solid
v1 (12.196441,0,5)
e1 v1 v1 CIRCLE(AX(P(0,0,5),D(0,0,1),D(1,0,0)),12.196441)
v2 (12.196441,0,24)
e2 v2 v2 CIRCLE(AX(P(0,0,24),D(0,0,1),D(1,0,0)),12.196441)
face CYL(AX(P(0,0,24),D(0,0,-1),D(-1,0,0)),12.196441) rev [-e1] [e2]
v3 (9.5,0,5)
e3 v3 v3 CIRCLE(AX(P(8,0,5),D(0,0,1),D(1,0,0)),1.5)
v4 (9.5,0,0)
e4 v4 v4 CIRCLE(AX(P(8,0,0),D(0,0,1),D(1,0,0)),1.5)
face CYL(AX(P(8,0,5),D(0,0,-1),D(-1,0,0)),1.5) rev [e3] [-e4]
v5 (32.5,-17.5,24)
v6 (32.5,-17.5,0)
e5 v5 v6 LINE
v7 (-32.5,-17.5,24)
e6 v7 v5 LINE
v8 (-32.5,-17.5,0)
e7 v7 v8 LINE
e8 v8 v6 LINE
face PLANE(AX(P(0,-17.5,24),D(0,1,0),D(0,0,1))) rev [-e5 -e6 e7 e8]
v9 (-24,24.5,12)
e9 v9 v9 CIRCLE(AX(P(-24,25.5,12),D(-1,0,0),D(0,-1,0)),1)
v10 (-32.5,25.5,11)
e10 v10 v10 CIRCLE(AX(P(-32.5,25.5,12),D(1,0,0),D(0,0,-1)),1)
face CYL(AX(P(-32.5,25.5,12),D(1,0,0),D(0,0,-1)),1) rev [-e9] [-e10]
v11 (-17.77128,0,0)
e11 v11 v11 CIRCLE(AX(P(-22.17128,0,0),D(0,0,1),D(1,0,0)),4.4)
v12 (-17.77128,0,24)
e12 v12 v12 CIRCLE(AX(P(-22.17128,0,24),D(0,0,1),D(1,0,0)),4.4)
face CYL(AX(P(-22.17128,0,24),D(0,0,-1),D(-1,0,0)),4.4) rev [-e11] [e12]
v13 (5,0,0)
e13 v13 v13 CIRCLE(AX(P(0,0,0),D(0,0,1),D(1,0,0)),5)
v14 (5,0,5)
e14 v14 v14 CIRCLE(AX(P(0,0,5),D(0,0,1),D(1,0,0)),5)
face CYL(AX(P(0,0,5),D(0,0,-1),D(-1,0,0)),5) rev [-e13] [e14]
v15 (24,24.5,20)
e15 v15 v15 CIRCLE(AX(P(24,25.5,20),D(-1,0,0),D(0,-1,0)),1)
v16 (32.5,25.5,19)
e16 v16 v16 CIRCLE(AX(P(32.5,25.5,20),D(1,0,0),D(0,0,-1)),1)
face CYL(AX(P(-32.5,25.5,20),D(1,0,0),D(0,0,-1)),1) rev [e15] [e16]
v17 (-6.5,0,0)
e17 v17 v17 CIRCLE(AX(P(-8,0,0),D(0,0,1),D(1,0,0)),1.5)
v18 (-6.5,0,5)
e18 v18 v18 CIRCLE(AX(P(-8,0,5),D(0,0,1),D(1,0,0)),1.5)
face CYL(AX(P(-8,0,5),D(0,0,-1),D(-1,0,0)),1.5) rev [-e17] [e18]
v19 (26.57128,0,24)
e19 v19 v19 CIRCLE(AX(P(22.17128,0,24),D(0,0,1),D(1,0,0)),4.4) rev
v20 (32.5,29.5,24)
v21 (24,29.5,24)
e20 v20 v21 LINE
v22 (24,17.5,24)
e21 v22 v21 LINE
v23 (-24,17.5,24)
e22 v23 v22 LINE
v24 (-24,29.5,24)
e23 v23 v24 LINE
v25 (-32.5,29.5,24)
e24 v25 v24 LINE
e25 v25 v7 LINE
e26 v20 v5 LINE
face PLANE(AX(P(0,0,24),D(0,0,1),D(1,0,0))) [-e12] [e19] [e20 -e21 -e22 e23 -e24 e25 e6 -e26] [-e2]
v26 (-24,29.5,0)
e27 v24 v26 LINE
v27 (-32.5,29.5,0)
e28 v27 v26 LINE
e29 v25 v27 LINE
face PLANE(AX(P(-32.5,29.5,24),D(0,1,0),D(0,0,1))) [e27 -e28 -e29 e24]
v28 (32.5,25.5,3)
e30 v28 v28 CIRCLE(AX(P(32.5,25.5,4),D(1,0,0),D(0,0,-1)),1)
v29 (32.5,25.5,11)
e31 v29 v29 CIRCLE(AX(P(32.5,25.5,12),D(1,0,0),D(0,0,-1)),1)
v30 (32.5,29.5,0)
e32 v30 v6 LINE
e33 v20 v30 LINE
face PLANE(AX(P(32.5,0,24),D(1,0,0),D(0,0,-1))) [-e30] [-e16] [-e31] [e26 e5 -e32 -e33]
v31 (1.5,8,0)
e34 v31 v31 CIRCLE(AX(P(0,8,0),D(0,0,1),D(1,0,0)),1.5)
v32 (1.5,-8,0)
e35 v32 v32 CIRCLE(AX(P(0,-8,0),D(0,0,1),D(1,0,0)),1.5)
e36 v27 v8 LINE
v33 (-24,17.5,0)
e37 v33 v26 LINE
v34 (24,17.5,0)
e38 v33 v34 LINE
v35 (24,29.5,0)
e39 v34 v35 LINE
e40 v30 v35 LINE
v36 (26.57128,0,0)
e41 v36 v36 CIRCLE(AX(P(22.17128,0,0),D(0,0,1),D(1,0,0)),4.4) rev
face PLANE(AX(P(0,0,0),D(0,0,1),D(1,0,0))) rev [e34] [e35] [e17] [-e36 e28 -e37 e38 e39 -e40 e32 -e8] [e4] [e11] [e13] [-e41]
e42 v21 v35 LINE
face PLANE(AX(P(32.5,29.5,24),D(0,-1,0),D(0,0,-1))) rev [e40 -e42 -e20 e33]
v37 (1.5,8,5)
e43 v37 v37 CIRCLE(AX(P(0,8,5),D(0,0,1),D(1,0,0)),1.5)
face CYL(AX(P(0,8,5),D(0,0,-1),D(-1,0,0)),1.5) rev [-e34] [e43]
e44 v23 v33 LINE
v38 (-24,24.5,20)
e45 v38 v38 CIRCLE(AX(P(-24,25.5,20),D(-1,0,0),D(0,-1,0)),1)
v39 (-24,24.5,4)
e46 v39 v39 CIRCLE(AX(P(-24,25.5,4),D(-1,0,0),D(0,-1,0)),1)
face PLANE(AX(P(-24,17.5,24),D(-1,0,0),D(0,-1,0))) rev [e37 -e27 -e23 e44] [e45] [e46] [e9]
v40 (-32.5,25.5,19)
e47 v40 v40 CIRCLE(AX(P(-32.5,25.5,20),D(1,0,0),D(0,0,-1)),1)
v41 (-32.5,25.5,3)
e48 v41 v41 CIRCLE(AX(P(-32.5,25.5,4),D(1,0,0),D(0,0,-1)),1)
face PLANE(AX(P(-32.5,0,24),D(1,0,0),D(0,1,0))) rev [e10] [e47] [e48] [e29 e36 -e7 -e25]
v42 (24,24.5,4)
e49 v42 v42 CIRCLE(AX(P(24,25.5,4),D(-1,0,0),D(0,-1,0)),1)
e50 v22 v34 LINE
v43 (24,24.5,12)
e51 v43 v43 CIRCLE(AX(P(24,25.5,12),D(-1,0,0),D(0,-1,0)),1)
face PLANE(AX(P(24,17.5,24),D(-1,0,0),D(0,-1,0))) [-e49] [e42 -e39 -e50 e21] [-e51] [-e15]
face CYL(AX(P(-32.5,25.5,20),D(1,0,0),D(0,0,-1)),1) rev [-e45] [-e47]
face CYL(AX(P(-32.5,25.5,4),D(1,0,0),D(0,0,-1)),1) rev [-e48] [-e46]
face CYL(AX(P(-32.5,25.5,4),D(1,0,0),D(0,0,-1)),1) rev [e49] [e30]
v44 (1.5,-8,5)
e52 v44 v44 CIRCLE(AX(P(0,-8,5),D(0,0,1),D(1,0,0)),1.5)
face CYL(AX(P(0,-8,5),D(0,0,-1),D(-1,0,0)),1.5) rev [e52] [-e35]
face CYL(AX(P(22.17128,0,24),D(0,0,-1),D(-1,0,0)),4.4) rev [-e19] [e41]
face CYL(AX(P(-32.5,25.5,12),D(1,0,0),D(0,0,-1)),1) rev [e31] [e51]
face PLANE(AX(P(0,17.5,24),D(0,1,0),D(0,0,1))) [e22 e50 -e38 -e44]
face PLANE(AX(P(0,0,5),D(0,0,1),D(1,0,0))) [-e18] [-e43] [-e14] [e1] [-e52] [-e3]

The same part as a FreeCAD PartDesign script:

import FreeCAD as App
import Part
import Sketcher
from FreeCAD import Vector
Q = App.Units.Quantity

doc = App.newDocument("Part")
body = doc.addObject("PartDesign::Body", "Body")

# Sketch on XY plane
sketch1 = doc.addObject("Sketcher::SketchObject", "Sketch")
body.addObject(sketch1)
sketch1.AttachmentSupport = (doc.XY_Plane, [""])
sketch1.MapMode = "FlatFace"
sketch1.addGeometry([
    Part.LineSegment(Vector(-32.5, 29.5, 0), Vector(-32.5, -17.5, 0)),  # 0
    Part.LineSegment(Vector(-32.5, -17.5, 0), Vector(32.5, -17.5, 0)),  # 1
    Part.LineSegment(Vector(32.5, -17.5, 0), Vector(32.5, 29.5, 0)),  # 2
    Part.LineSegment(Vector(32.5, 29.5, 0), Vector(24, 29.5, 0)),  # 3
    Part.LineSegment(Vector(24, 29.5, 0), Vector(24, 17.5, 0)),  # 4
    Part.LineSegment(Vector(24, 17.5, 0), Vector(-24, 17.5, 0)),  # 5
    Part.LineSegment(Vector(-24, 17.5, 0), Vector(-24, 29.5, 0)),  # 6
    Part.LineSegment(Vector(-24, 29.5, 0), Vector(-32.5, 29.5, 0)),  # 7
    Part.Circle(Vector(-22.2, 0, 0), Vector(0, 0, 1), 4.4),  # 8
    Part.Circle(Vector(0, 0, 0), Vector(0, 0, 1), 12.2),  # 9
    Part.Circle(Vector(22.2, 0, 0), Vector(0, 0, 1), 4.4),  # 10
], False)
sketch1.addConstraint([
    Sketcher.Constraint("Coincident", 0, 2, 1, 1),
    Sketcher.Constraint("Coincident", 1, 2, 2, 1),
    Sketcher.Constraint("Coincident", 2, 2, 3, 1),
    Sketcher.Constraint("Coincident", 3, 2, 4, 1),
    Sketcher.Constraint("Coincident", 4, 2, 5, 1),
    Sketcher.Constraint("Coincident", 5, 2, 6, 1),
    Sketcher.Constraint("Coincident", 6, 2, 7, 1),
    Sketcher.Constraint("Coincident", 7, 2, 0, 1),
    Sketcher.Constraint("Vertical", 0),
    Sketcher.Constraint("Horizontal", 1),
    Sketcher.Constraint("Vertical", 2),
    Sketcher.Constraint("Horizontal", 3),
    Sketcher.Constraint("Vertical", 4),
    Sketcher.Constraint("Horizontal", 5),
    Sketcher.Constraint("Vertical", 6),
    Sketcher.Constraint("Horizontal", 7),
    Sketcher.Constraint("Coincident", 9, 3, -1, 1),
    Sketcher.Constraint("Equal", 8, 10),
    Sketcher.Constraint("Symmetric", 8, 3, 10, 3, -1, 1),
    Sketcher.Constraint("Symmetric", 3, 2, 6, 2, -2),
    Sketcher.Constraint("PointOnObject", 8, 3, -1),
    Sketcher.Constraint("Equal", 3, 7),
    Sketcher.Constraint("Diameter", 8, Q("8.8 mm")),
    Sketcher.Constraint("DistanceX", 1, 1, 1, 2, Q("65 mm")),
    Sketcher.Constraint("DistanceX", 5, 2, 5, 1, Q("48 mm")),
    Sketcher.Constraint("DistanceY", 0, 2, 0, 1, Q("47 mm")),
    Sketcher.Constraint("DistanceY", 4, 2, 4, 1, Q("12 mm")),
    Sketcher.Constraint("DistanceY", 0, 2, -1, 1, Q("17.5 mm")),
    Sketcher.Constraint("Diameter", 9, Q("24.392881 mm")),
    Sketcher.Constraint("DistanceX", 8, 3, -1, 1, Q("22.17128 mm")),
])
pad1 = doc.addObject("PartDesign::Pad", "Pad")
body.addObject(pad1)
pad1.Profile = sketch1
pad1.Length = 24

# Sketch on XY plane
sketch2 = doc.addObject("Sketcher::SketchObject", "Sketch001")
body.addObject(sketch2)
sketch2.AttachmentSupport = (doc.XY_Plane, [""])
sketch2.MapMode = "FlatFace"
sketch2.addGeometry([
    Part.Circle(Vector(0, 0, 0), Vector(0, 0, 1), 12.2),  # 0
    Part.Circle(Vector(0, -8, 0), Vector(0, 0, 1), 1.5),  # 1
    Part.Circle(Vector(-8, 0, 0), Vector(0, 0, 1), 1.5),  # 2
    Part.Circle(Vector(0, 0, 0), Vector(0, 0, 1), 5),  # 3
    Part.Circle(Vector(8, 0, 0), Vector(0, 0, 1), 1.5),  # 4
    Part.Circle(Vector(0, 8, 0), Vector(0, 0, 1), 1.5),  # 5
], False)
sketch2.addConstraint([
    Sketcher.Constraint("Coincident", 0, 3, -1, 1),
    Sketcher.Constraint("Coincident", 3, 3, -1, 1),
    Sketcher.Constraint("Equal", 1, 2),
    Sketcher.Constraint("Equal", 2, 4),
    Sketcher.Constraint("Equal", 4, 5),
    Sketcher.Constraint("Symmetric", 2, 3, 4, 3, -1, 1),
    Sketcher.Constraint("Symmetric", 1, 3, 5, 3, -1, 1),
    Sketcher.Constraint("PointOnObject", 1, 3, -2),
    Sketcher.Constraint("PointOnObject", 2, 3, -1),
    Sketcher.Constraint("Diameter", 1, Q("3 mm")),
    Sketcher.Constraint("Diameter", 3, Q("10 mm")),
    Sketcher.Constraint("DistanceY", 1, 3, -1, 1, Q("8 mm")),
    Sketcher.Constraint("DistanceX", 2, 3, -1, 1, Q("8 mm")),
    Sketcher.Constraint("Diameter", 0, Q("24.392881 mm")),
])
pad2 = doc.addObject("PartDesign::Pad", "Pad001")
body.addObject(pad2)
pad2.Profile = sketch2
pad2.Length = 5

# Sketch on YZ plane
sketch3 = doc.addObject("Sketcher::SketchObject", "Sketch002")
body.addObject(sketch3)
sketch3.AttachmentSupport = (doc.YZ_Plane, [""])
sketch3.MapMode = "FlatFace"
sketch3.addGeometry([
    Part.Circle(Vector(25.5, 20, 0), Vector(0, 0, 1), 1),
    Part.Circle(Vector(25.5, 12, 0), Vector(0, 0, 1), 1),
    Part.Circle(Vector(25.5, 4, 0), Vector(0, 0, 1), 1),
], False)
sketch3.addConstraint([
    Sketcher.Constraint("Equal", 0, 1),
    Sketcher.Constraint("Equal", 1, 2),
    Sketcher.Constraint("Vertical", 0, 3, 1, 3),
    Sketcher.Constraint("Vertical", 1, 3, 2, 3),
    Sketcher.Constraint("Diameter", 0, Q("2 mm")),
    Sketcher.Constraint("DistanceY", -1, 1, 0, 3, Q("20 mm")),
    Sketcher.Constraint("DistanceY", -1, 1, 1, 3, Q("12 mm")),
    Sketcher.Constraint("DistanceY", -1, 1, 2, 3, Q("4 mm")),
    Sketcher.Constraint("DistanceX", -1, 1, 0, 3, Q("25.5 mm")),
])
pocket1 = doc.addObject("PartDesign::Pocket", "Pocket")
body.addObject(pocket1)
pocket1.Profile = sketch3
pocket1.Type = "ThroughAll"
pocket1.Midplane = True

doc.recompute()
